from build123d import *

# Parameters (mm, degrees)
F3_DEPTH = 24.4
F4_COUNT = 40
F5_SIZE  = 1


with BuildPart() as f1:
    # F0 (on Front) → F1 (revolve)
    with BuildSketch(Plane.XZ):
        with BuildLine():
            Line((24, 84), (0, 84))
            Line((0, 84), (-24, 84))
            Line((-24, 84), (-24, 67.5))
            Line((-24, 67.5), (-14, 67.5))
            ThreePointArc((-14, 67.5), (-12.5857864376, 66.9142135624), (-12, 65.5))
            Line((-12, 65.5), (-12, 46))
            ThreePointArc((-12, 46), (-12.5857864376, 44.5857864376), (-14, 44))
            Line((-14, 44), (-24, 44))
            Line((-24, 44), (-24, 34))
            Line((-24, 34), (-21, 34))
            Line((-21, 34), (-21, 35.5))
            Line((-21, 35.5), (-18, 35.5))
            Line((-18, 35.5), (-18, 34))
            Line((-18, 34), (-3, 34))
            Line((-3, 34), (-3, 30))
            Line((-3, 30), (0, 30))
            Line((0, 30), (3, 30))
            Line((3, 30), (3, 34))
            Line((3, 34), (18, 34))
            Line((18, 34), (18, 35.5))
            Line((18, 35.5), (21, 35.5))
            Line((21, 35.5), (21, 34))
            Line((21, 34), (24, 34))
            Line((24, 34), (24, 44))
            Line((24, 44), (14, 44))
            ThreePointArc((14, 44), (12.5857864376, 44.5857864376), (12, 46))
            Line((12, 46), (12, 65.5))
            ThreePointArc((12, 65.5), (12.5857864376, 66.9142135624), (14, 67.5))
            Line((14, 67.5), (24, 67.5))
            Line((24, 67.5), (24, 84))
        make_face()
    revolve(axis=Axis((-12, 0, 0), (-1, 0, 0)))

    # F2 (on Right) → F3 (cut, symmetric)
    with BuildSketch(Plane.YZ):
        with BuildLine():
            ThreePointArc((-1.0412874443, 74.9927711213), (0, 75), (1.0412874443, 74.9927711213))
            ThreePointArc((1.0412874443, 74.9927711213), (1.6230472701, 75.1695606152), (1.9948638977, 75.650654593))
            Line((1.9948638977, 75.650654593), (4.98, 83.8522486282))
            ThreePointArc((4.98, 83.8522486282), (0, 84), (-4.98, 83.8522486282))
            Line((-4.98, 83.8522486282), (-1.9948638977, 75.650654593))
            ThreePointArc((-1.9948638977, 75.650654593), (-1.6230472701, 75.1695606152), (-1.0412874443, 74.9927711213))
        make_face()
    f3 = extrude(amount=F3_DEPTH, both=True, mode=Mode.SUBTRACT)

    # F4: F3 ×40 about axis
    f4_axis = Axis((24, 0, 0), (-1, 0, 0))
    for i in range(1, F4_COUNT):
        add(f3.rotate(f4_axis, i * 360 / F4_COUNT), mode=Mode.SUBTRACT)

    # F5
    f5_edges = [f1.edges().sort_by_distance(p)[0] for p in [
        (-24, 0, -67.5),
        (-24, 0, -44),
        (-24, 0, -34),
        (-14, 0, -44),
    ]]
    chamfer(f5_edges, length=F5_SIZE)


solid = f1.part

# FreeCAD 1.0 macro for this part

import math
import FreeCAD as App
import Part
import Sketcher
from FreeCAD import Vector
Q = App.Units.Quantity


def edges_at(feature, points):
    """Names of the edges that pass closest to the given points."""
    edges = feature.Shape.Edges
    near = lambda p: min(range(len(edges)), key=lambda i: edges[i].distToShape(Part.Vertex(*p))[0])
    return sorted({f"Edge{near(p) + 1}" for p in points})

doc = App.newDocument("Part")
body = doc.addObject("PartDesign::Body", "Body")

sketch1 = body.newObject("Sketcher::SketchObject", "Sketch")
sketch1.AttachmentSupport = (doc.getObject("XZ_Plane"), [""])
sketch1.MapMode = "FlatFace"
sketch1.addGeometry(Part.LineSegment(Vector(24, 84, 0), Vector(-24, 84, 0)), False)
sketch1.addGeometry(Part.LineSegment(Vector(-24, 84, 0), Vector(-24, 67.5, 0)), False)
sketch1.addGeometry(Part.LineSegment(Vector(-24, 67.5, 0), Vector(-14, 67.5, 0)), False)
sketch1.addGeometry(Part.ArcOfCircle(Part.Circle(Vector(-14, 65.5, 0), Vector(0, 0, 1), 2), math.radians(0), math.radians(90)), False)
sketch1.addGeometry(Part.LineSegment(Vector(-12, 65.5, 0), Vector(-12, 46, 0)), False)
sketch1.addGeometry(Part.ArcOfCircle(Part.Circle(Vector(-14, 46, 0), Vector(0, 0, 1), 2), math.radians(-90), math.radians(0)), False)
sketch1.addGeometry(Part.LineSegment(Vector(-14, 44, 0), Vector(-24, 44, 0)), False)
sketch1.addGeometry(Part.LineSegment(Vector(-24, 44, 0), Vector(-24, 34, 0)), False)
sketch1.addGeometry(Part.LineSegment(Vector(-24, 34, 0), Vector(-21, 34, 0)), False)
sketch1.addGeometry(Part.LineSegment(Vector(-21, 34, 0), Vector(-21, 35.5, 0)), False)
sketch1.addGeometry(Part.LineSegment(Vector(-21, 35.5, 0), Vector(-18, 35.5, 0)), False)
sketch1.addGeometry(Part.LineSegment(Vector(-18, 35.5, 0), Vector(-18, 34, 0)), False)
sketch1.addGeometry(Part.LineSegment(Vector(-18, 34, 0), Vector(-3, 34, 0)), False)
sketch1.addGeometry(Part.LineSegment(Vector(-3, 34, 0), Vector(-3, 30, 0)), False)
sketch1.addGeometry(Part.LineSegment(Vector(-3, 30, 0), Vector(3, 30, 0)), False)
sketch1.addGeometry(Part.LineSegment(Vector(3, 30, 0), Vector(3, 34, 0)), False)
sketch1.addGeometry(Part.LineSegment(Vector(3, 34, 0), Vector(18, 34, 0)), False)
sketch1.addGeometry(Part.LineSegment(Vector(18, 34, 0), Vector(18, 35.5, 0)), False)
sketch1.addGeometry(Part.LineSegment(Vector(18, 35.5, 0), Vector(21, 35.5, 0)), False)
sketch1.addGeometry(Part.LineSegment(Vector(21, 35.5, 0), Vector(21, 34, 0)), False)
sketch1.addGeometry(Part.LineSegment(Vector(21, 34, 0), Vector(24, 34, 0)), False)
sketch1.addGeometry(Part.LineSegment(Vector(24, 34, 0), Vector(24, 44, 0)), False)
sketch1.addGeometry(Part.LineSegment(Vector(24, 44, 0), Vector(14, 44, 0)), False)
sketch1.addGeometry(Part.ArcOfCircle(Part.Circle(Vector(14, 46, 0), Vector(0, 0, 1), 2), math.radians(180), math.radians(270)), False)
sketch1.addGeometry(Part.LineSegment(Vector(12, 46, 0), Vector(12, 65.5, 0)), False)
sketch1.addGeometry(Part.ArcOfCircle(Part.Circle(Vector(14, 65.5, 0), Vector(0, 0, 1), 2), math.radians(90), math.radians(180)), False)
sketch1.addGeometry(Part.LineSegment(Vector(14, 67.5, 0), Vector(24, 67.5, 0)), False)
sketch1.addGeometry(Part.LineSegment(Vector(24, 67.5, 0), Vector(24, 84, 0)), False)
sketch1.addConstraint(Sketcher.Constraint("Coincident", 0, 2, 1, 1))
sketch1.addConstraint(Sketcher.Constraint("Coincident", 1, 2, 2, 1))
sketch1.addConstraint(Sketcher.Constraint("Tangent", 2, 2, 3, 2))
sketch1.addConstraint(Sketcher.Constraint("Tangent", 3, 1, 4, 1))
sketch1.addConstraint(Sketcher.Constraint("Tangent", 4, 2, 5, 2))
sketch1.addConstraint(Sketcher.Constraint("Tangent", 5, 1, 6, 1))
sketch1.addConstraint(Sketcher.Constraint("Coincident", 6, 2, 7, 1))
sketch1.addConstraint(Sketcher.Constraint("Coincident", 7, 2, 8, 1))
sketch1.addConstraint(Sketcher.Constraint("Coincident", 8, 2, 9, 1))
sketch1.addConstraint(Sketcher.Constraint("Coincident", 9, 2, 10, 1))
sketch1.addConstraint(Sketcher.Constraint("Coincident", 10, 2, 11, 1))
sketch1.addConstraint(Sketcher.Constraint("Coincident", 11, 2, 12, 1))
sketch1.addConstraint(Sketcher.Constraint("Coincident", 12, 2, 13, 1))
sketch1.addConstraint(Sketcher.Constraint("Coincident", 13, 2, 14, 1))
sketch1.addConstraint(Sketcher.Constraint("Coincident", 14, 2, 15, 1))
sketch1.addConstraint(Sketcher.Constraint("Coincident", 15, 2, 16, 1))
sketch1.addConstraint(Sketcher.Constraint("Coincident", 16, 2, 17, 1))
sketch1.addConstraint(Sketcher.Constraint("Coincident", 17, 2, 18, 1))
sketch1.addConstraint(Sketcher.Constraint("Coincident", 18, 2, 19, 1))
sketch1.addConstraint(Sketcher.Constraint("Coincident", 19, 2, 20, 1))
sketch1.addConstraint(Sketcher.Constraint("Coincident", 20, 2, 21, 1))
sketch1.addConstraint(Sketcher.Constraint("Coincident", 21, 2, 22, 1))
sketch1.addConstraint(Sketcher.Constraint("Tangent", 22, 2, 23, 2))
sketch1.addConstraint(Sketcher.Constraint("Tangent", 23, 1, 24, 1))
sketch1.addConstraint(Sketcher.Constraint("Tangent", 24, 2, 25, 2))
sketch1.addConstraint(Sketcher.Constraint("Tangent", 25, 1, 26, 1))
sketch1.addConstraint(Sketcher.Constraint("Coincident", 26, 2, 27, 1))
sketch1.addConstraint(Sketcher.Constraint("Coincident", 27, 2, 0, 1))
sketch1.addConstraint(Sketcher.Constraint("Horizontal", 0))
sketch1.addConstraint(Sketcher.Constraint("Vertical", 1))
sketch1.addConstraint(Sketcher.Constraint("Horizontal", 2))
sketch1.addConstraint(Sketcher.Constraint("Vertical", 4))
sketch1.addConstraint(Sketcher.Constraint("Horizontal", 6))
sketch1.addConstraint(Sketcher.Constraint("Vertical", 7))
sketch1.addConstraint(Sketcher.Constraint("Horizontal", 8))
sketch1.addConstraint(Sketcher.Constraint("Vertical", 9))
sketch1.addConstraint(Sketcher.Constraint("Horizontal", 10))
sketch1.addConstraint(Sketcher.Constraint("Vertical", 11))
sketch1.addConstraint(Sketcher.Constraint("Horizontal", 12))
sketch1.addConstraint(Sketcher.Constraint("Vertical", 13))
sketch1.addConstraint(Sketcher.Constraint("Horizontal", 14))
sketch1.addConstraint(Sketcher.Constraint("Vertical", 15))
sketch1.addConstraint(Sketcher.Constraint("Horizontal", 16))
sketch1.addConstraint(Sketcher.Constraint("Vertical", 17))
sketch1.addConstraint(Sketcher.Constraint("Horizontal", 18))
sketch1.addConstraint(Sketcher.Constraint("Vertical", 19))
sketch1.addConstraint(Sketcher.Constraint("Horizontal", 20))
sketch1.addConstraint(Sketcher.Constraint("Vertical", 21))
sketch1.addConstraint(Sketcher.Constraint("Horizontal", 22))
sketch1.addConstraint(Sketcher.Constraint("Vertical", 24))
sketch1.addConstraint(Sketcher.Constraint("Horizontal", 26))
sketch1.addConstraint(Sketcher.Constraint("Vertical", 27))
sketch1.addConstraint(Sketcher.Constraint("Equal", 3, 5))
sketch1.addConstraint(Sketcher.Constraint("Equal", 5, 23))
sketch1.addConstraint(Sketcher.Constraint("Equal", 23, 25))
sketch1.addConstraint(Sketcher.Constraint("Symmetric", 5, 3, 23, 3, -2))
sketch1.addConstraint(Sketcher.Constraint("Symmetric", 12, 2, 15, 2, -2))
sketch1.addConstraint(Sketcher.Constraint("Symmetric", 10, 2, 17, 2, -2))
sketch1.addConstraint(Sketcher.Constraint("Symmetric", 8, 2, 19, 2, -2))
sketch1.addConstraint(Sketcher.Constraint("Symmetric", 1, 2, 26, 2, -2))
sketch1.addConstraint(Sketcher.Constraint("Horizontal", 8, 2, 11, 2))
sketch1.addConstraint(Sketcher.Constraint("Vertical", 1, 2, 6, 2))
sketch1.addConstraint(Sketcher.Constraint("Vertical", 21, 2, 26, 2))
sketch1.addConstraint(Sketcher.Constraint("Equal", 8, 10))
sketch1.addConstraint(Sketcher.Constraint("Equal", 26, 7))
sketch1.addConstraint(Sketcher.Constraint("Radius", 3, 2.0))
sketch1.addConstraint(Sketcher.Constraint("DistanceX", 0, 2, 0, 1, 48.0))
sketch1.addConstraint(Sketcher.Constraint("DistanceX", 2, 1, 2, 2, 10.0))
sketch1.addConstraint(Sketcher.Constraint("DistanceX", 8, 1, 8, 2, 3.0))
sketch1.addConstraint(Sketcher.Constraint("DistanceX", 12, 1, 12, 2, 15.0))
sketch1.addConstraint(Sketcher.Constraint("DistanceY", 13, 2, 13, 1, 4.0))
sketch1.addConstraint(Sketcher.Constraint("DistanceY", 1, 2, 1, 1, 16.5))
sketch1.addConstraint(Sketcher.Constraint("DistanceY", 4, 2, 4, 1, 19.5))
sketch1.addConstraint(Sketcher.Constraint("DistanceY", 9, 1, 9, 2, 1.5))
sketch1.addConstraint(Sketcher.Constraint("DistanceY", -1, 1, 5, 3, 46.0))
revolution = body.newObject("PartDesign::Revolution", "Revolution")
revolution.Profile = sketch1
revolution.ReferenceAxis = (sketch1, ["H_Axis"])
revolution.Angle = 360

sketch2 = body.newObject("Sketcher::SketchObject", "Sketch001")
sketch2.AttachmentSupport = (doc.getObject("YZ_Plane"), [""])
sketch2.MapMode = "FlatFace"
sketch2.addGeometry(Part.ArcOfCircle(Part.Circle(Vector(0, 0, 0), Vector(0, 0, 1), 75), math.radians(89.204489), math.radians(90.795511)), False)
sketch2.addGeometry(Part.ArcOfCircle(Part.Circle(Vector(1.055171, 75.992675, 0), Vector(0, 0, 1), 1), math.radians(-90.795511), math.radians(-20)), False)
sketch2.addGeometry(Part.LineSegment(Vector(1.994864, 75.650655, 0), Vector(4.98, 83.852249, 0)), False)
sketch2.addGeometry(Part.ArcOfCircle(Part.Circle(Vector(0, 0, 0), Vector(0, 0, 1), 84), math.radians(86.601186), math.radians(93.398814)), False)
sketch2.addGeometry(Part.LineSegment(Vector(-4.98, 83.852249, 0), Vector(-1.994864, 75.650655, 0)), False)
sketch2.addGeometry(Part.ArcOfCircle(Part.Circle(Vector(-1.055171, 75.992675, 0), Vector(0, 0, 1), 1), math.radians(-160), math.radians(-89.204489)), False)
sketch2.addConstraint(Sketcher.Constraint("Tangent", 0, 1, 1, 1))
sketch2.addConstraint(Sketcher.Constraint("Tangent", 1, 2, 2, 1))
sketch2.addConstraint(Sketcher.Constraint("Coincident", 2, 2, 3, 1))
sketch2.addConstraint(Sketcher.Constraint("Coincident", 3, 2, 4, 1))
sketch2.addConstraint(Sketcher.Constraint("Tangent", 4, 2, 5, 1))
sketch2.addConstraint(Sketcher.Constraint("Tangent", 5, 2, 0, 2))
sketch2.addConstraint(Sketcher.Constraint("Coincident", 0, 3, -1, 1))
sketch2.addConstraint(Sketcher.Constraint("Coincident", 3, 3, -1, 1))
sketch2.addConstraint(Sketcher.Constraint("Equal", 1, 5))
sketch2.addConstraint(Sketcher.Constraint("Symmetric", 1, 2, 4, 2, -2))
sketch2.addConstraint(Sketcher.Constraint("Radius", 0, 75.0))
sketch2.addConstraint(Sketcher.Constraint("Radius", 1, 1.0))
sketch2.addConstraint(Sketcher.Constraint("Radius", 3, 84.0))
sketch2.addConstraint(Sketcher.Constraint("Angle", 2, Q("70 deg")))
sketch2.addConstraint(Sketcher.Constraint("DistanceX", -1, 1, 2, 2, 4.98))
pocket1 = body.newObject("PartDesign::Pocket", "Pocket")
pocket1.Profile = sketch2
pocket1.Length = 48.8
pocket1.Midplane = True
doc.recompute()

polarpattern = body.newObject("PartDesign::PolarPattern", "PolarPattern")
polarpattern.Originals = [pocket1]
polarpattern.Axis = (doc.getObject("X_Axis"), [""])
polarpattern.Angle = 360
polarpattern.Occurrences = 40
body.Tip = polarpattern
doc.recompute()

chamfer = body.newObject("PartDesign::Chamfer", "Chamfer")
chamfer.Base = (polarpattern, edges_at(polarpattern, [
    (-24, 0, -67.5),
    (-24, 0, -44),
    (-24, 0, -34),
    (-14, 0, -44),
]))
chamfer.Size = 1

doc.recompute()
